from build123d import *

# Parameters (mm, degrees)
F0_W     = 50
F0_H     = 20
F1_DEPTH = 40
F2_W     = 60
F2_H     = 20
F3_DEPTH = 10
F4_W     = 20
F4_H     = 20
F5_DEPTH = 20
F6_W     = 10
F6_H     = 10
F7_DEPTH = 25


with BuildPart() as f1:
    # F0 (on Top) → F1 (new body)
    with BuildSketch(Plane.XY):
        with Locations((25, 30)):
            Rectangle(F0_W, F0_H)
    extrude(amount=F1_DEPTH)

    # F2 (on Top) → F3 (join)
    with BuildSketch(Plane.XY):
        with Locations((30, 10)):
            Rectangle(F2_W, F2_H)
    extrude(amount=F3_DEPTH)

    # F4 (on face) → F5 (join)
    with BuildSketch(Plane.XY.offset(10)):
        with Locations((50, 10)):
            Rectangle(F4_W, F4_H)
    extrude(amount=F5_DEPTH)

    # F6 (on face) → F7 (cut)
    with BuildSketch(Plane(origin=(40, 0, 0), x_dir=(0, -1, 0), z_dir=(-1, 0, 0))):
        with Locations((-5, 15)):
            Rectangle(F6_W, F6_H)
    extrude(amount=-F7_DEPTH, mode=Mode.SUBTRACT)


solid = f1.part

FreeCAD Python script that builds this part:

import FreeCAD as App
import Part
import Sketcher
Q = App.Units.Quantity


def add_polygon(sketch, points):
    """Adds a closed chain of lines whose ends are joined by coincident constraints."""
    first, n = sketch.GeometryCount, len(points)
    for a, b in zip(points, points[1:] + points[:1]):
        sketch.addGeometry(Part.LineSegment(App.Vector(*a, 0), App.Vector(*b, 0)), False)
    for i in range(n):
        sketch.addConstraint(Sketcher.Constraint("Coincident", first + i, 2, first + (i + 1) % n, 1))

doc = App.newDocument("Part")
body = doc.addObject("PartDesign::Body", "Body")

sketch1 = body.newObject("Sketcher::SketchObject", "Sketch")
sketch1.AttachmentSupport = (doc.getObject("XY_Plane"), [""])
sketch1.MapMode = "FlatFace"
add_polygon(sketch1, [(0, 40), (0, 20), (50, 20), (50, 40)])
sketch1.addConstraint([
    Sketcher.Constraint("Vertical", 0),
    Sketcher.Constraint("Horizontal", 1),
    Sketcher.Constraint("Vertical", 2),
    Sketcher.Constraint("Horizontal", 3),
    Sketcher.Constraint("PointOnObject", 0, 2, -2),
    Sketcher.Constraint("DistanceX", 1, 1, 1, 2, Q("50 mm")),
    Sketcher.Constraint("DistanceY", 0, 2, 0, 1, Q("20 mm")),
    Sketcher.Constraint("DistanceY", -1, 1, 0, 2, Q("20 mm")),
])
pad1 = body.newObject("PartDesign::Pad", "Pad")
pad1.Profile = sketch1
pad1.Length = 40

sketch2 = body.newObject("Sketcher::SketchObject", "Sketch001")
sketch2.AttachmentSupport = (doc.getObject("XY_Plane"), [""])
sketch2.MapMode = "FlatFace"
add_polygon(sketch2, [(0, 20), (0, 0), (60, 0), (60, 20)])
sketch2.addConstraint([
    Sketcher.Constraint("Vertical", 0),
    Sketcher.Constraint("Horizontal", 1),
    Sketcher.Constraint("Vertical", 2),
    Sketcher.Constraint("Horizontal", 3),
    Sketcher.Constraint("Coincident", 0, 2, -1, 1),
    Sketcher.Constraint("DistanceX", 1, 1, 1, 2, Q("60 mm")),
    Sketcher.Constraint("DistanceY", 0, 2, 0, 1, Q("20 mm")),
])
pad2 = body.newObject("PartDesign::Pad", "Pad001")
pad2.Profile = sketch2
pad2.Length = 10

sketch3 = body.newObject("Sketcher::SketchObject", "Sketch002")
sketch3.AttachmentSupport = (doc.getObject("XY_Plane"), [""])
sketch3.MapMode = "FlatFace"
sketch3.AttachmentOffset = App.Placement(App.Vector(0, 0, 10), App.Rotation())
add_polygon(sketch3, [(40, 20), (40, 0), (60, 0), (60, 20)])
sketch3.addConstraint([
    Sketcher.Constraint("Vertical", 0),
    Sketcher.Constraint("Horizontal", 1),
    Sketcher.Constraint("Vertical", 2),
    Sketcher.Constraint("Horizontal", 3),
    Sketcher.Constraint("PointOnObject", 0, 2, -1),
    Sketcher.Constraint("Equal", 3, 0),
    Sketcher.Constraint("DistanceX", 1, 1, 1, 2, Q("20 mm")),
    Sketcher.Constraint("DistanceX", -1, 1, 0, 2, Q("40 mm")),
])
pad3 = body.newObject("PartDesign::Pad", "Pad002")
pad3.Profile = sketch3
pad3.Length = 20

sketch4 = body.newObject("Sketcher::SketchObject", "Sketch003")
sketch4.AttachmentSupport = (doc.getObject("YZ_Plane"), [""])
sketch4.MapMode = "FlatFace"
sketch4.AttachmentOffset = App.Placement(App.Vector(0, 0, 40), App.Rotation())
add_polygon(sketch4, [(10, 20), (10, 10), (0, 10), (0, 20)])
sketch4.addConstraint([
    Sketcher.Constraint("Vertical", 0),
    Sketcher.Constraint("Horizontal", 1),
    Sketcher.Constraint("Vertical", 2),
    Sketcher.Constraint("Horizontal", 3),
    Sketcher.Constraint("PointOnObject", 1, 2, -2),
    Sketcher.Constraint("Equal", 3, 0),
    Sketcher.Constraint("DistanceX", 1, 2, 1, 1, Q("10 mm")),
    Sketcher.Constraint("DistanceY", -1, 1, 0, 2, Q("10 mm")),
])
pocket1 = body.newObject("PartDesign::Pocket", "Pocket")
pocket1.Profile = sketch4
pocket1.Length = 25
pocket1.Reversed = True

doc.recompute()
